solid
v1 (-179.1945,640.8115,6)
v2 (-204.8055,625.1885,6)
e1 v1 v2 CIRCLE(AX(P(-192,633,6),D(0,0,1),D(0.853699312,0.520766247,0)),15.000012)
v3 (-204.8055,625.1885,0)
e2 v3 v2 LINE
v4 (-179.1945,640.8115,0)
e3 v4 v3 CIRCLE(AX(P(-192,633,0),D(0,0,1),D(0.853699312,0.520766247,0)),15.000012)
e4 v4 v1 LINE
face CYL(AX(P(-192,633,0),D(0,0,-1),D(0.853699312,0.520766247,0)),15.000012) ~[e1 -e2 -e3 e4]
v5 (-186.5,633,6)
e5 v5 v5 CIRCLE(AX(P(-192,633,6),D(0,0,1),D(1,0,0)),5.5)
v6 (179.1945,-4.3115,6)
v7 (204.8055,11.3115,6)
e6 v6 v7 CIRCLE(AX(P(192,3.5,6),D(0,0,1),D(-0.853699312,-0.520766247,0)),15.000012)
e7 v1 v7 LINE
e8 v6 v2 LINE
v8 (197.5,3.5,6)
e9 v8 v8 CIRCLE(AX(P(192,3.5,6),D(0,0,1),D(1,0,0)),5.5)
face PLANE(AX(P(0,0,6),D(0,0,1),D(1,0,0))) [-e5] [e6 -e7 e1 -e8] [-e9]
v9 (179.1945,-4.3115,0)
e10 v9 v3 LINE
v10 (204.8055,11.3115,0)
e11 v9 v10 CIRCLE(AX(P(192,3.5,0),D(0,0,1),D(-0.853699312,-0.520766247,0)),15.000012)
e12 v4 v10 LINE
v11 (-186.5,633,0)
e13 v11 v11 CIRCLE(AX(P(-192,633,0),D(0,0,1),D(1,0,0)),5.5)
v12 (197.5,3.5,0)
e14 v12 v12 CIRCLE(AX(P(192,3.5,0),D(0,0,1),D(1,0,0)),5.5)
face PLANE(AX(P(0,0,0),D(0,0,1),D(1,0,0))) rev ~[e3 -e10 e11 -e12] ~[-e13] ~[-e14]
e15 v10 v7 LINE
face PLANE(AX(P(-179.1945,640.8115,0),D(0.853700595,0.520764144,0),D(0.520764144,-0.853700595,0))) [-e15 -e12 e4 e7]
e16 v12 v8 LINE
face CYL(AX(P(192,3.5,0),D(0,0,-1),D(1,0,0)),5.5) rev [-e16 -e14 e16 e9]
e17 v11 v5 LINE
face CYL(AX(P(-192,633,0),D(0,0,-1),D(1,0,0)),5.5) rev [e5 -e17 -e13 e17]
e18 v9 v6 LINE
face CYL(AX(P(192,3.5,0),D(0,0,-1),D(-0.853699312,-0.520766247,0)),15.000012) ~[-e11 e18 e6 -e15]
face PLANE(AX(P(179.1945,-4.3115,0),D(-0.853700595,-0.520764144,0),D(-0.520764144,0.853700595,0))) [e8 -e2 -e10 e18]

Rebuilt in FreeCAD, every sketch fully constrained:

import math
import FreeCAD as App
import Part
import Sketcher
from FreeCAD import Vector
Q = App.Units.Quantity

doc = App.newDocument("Part")
params = doc.addObject("Spreadsheet::Sheet", "Params")
for row, (alias, value) in enumerate([
    ("sketch1_diameter", "11 mm"),
    ("sketch1_radius", "15 mm"),
    ("pad1_length", "6 mm"),
], start=1):
    params.set(f"A{row}", alias)
    params.set(f"B{row}", "=" + value)
    params.setAlias(f"B{row}", alias)

body = doc.addObject("PartDesign::Body", "Body")

# Sketch on XY plane
sketch1 = body.newObject("Sketcher::SketchObject", "Sketch")
sketch1.AttachmentSupport = (doc.getObject("XY_Plane"), [""])
sketch1.MapMode = "FlatFace"
sketch1.addGeometry(Part.LineSegment(Vector(205, 11, 0), Vector(-179, 641, 0)), False)
sketch1.addGeometry(Part.ArcOfCircle(Part.Circle(Vector(-192, 633, 0), Vector(0, 0, 1), 15), math.radians(31), math.radians(211)), False)
sketch1.addGeometry(Part.LineSegment(Vector(-205, 625, 0), Vector(179, -4, 0)), False)
sketch1.addGeometry(Part.ArcOfCircle(Part.Circle(Vector(192, 4, 0), Vector(0, 0, 1), 15), math.radians(-149), math.radians(31)), False)
sketch1.addGeometry(Part.Circle(Vector(192, 4, 0), Vector(0, 0, 1), 6), False)
sketch1.addGeometry(Part.Circle(Vector(-192, 633, 0), Vector(0, 0, 1), 6), False)
sketch1.addConstraint(Sketcher.Constraint("Tangent", 0, 2, 1, 1))
sketch1.addConstraint(Sketcher.Constraint("Tangent", 1, 2, 2, 1))
sketch1.addConstraint(Sketcher.Constraint("Tangent", 2, 2, 3, 1))
sketch1.addConstraint(Sketcher.Constraint("Tangent", 3, 2, 0, 1))
sketch1.addConstraint(Sketcher.Constraint("Coincident", 4, 3, 3, 3))
sketch1.addConstraint(Sketcher.Constraint("Coincident", 5, 3, 1, 3))
sketch1.addConstraint(Sketcher.Constraint("Equal", 1, 3))
sketch1.addConstraint(Sketcher.Constraint("Equal", 4, 5))
sketch1.addConstraint(Sketcher.Constraint("Diameter", 4, Q("11 mm")))
sketch1.addConstraint(Sketcher.Constraint("Radius", 1, Q("15 mm")))
sketch1.addConstraint(Sketcher.Constraint("DistanceX", 1, 3, -1, 1, Q("192 mm")))
sketch1.addConstraint(Sketcher.Constraint("DistanceY", -1, 1, 1, 3, Q("633 mm")))
sketch1.addConstraint(Sketcher.Constraint("DistanceX", -1, 1, 3, 3, Q("192 mm")))
sketch1.addConstraint(Sketcher.Constraint("DistanceY", -1, 1, 3, 3, Q("3.5 mm")))
sketch1.setExpression("Constraints[8]", "Params.sketch1_diameter")
sketch1.setExpression("Constraints[9]", "Params.sketch1_radius")
pad1 = body.newObject("PartDesign::Pad", "Pad")
pad1.Profile = sketch1
pad1.setExpression("Length", "Params.pad1_length")

doc.recompute()
